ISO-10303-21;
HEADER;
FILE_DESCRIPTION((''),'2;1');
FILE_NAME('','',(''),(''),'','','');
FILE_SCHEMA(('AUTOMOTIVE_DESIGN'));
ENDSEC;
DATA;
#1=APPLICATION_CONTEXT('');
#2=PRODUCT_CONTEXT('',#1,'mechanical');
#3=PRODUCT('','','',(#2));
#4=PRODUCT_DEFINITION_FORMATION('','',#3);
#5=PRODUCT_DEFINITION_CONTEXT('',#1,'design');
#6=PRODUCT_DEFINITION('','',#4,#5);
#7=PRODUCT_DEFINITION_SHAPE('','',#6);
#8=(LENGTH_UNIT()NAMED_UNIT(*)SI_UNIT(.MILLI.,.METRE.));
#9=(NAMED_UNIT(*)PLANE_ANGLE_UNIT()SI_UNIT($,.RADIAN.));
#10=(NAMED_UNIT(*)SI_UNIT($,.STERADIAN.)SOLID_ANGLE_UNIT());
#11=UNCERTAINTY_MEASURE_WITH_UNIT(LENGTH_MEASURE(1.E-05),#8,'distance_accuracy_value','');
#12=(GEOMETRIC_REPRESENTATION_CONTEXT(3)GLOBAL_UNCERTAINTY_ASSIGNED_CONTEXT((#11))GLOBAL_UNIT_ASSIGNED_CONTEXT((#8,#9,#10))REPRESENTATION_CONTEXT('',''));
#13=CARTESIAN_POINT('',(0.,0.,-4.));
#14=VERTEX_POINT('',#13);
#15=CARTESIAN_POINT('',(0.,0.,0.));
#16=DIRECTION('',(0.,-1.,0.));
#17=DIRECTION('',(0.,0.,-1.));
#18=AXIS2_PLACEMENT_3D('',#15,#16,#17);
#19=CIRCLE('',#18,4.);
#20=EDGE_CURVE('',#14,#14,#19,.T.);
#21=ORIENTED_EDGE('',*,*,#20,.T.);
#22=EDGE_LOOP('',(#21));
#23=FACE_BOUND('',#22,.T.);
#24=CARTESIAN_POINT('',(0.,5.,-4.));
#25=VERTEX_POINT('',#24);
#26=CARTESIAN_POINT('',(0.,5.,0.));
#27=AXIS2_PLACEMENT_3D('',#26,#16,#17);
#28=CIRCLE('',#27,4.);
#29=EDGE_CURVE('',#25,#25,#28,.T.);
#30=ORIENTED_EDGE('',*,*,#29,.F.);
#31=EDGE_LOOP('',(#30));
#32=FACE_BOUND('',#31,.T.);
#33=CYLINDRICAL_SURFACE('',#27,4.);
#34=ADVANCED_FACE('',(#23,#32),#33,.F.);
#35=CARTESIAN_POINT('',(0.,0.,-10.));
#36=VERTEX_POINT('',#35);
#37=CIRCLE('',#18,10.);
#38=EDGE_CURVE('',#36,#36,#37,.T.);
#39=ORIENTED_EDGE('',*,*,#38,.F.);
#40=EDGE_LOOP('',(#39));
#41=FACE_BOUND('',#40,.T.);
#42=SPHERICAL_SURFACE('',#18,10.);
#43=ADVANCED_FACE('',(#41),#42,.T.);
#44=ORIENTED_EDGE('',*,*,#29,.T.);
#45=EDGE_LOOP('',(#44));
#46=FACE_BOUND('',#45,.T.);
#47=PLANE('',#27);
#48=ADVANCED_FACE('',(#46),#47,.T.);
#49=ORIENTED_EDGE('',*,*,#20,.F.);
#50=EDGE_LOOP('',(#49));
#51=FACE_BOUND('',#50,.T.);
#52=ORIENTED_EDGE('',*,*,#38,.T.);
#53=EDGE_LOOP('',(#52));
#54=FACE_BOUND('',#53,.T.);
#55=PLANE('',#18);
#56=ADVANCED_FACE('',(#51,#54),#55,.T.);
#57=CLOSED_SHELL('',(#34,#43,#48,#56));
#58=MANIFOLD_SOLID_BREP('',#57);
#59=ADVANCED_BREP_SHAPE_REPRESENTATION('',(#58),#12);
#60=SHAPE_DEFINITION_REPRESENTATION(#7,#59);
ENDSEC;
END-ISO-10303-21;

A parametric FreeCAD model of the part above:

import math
import FreeCAD as App
import Part
import Sketcher

V = App.Vector
Q = App.Units.Quantity

doc = App.newDocument("Part")
body = doc.addObject("PartDesign::Body", "Body")

sketch1 = body.newObject("Sketcher::SketchObject", "Sketch")
sketch1.AttachmentSupport = (doc.getObject("XZ_Plane"), [""])
sketch1.MapMode = "FlatFace"
sketch1.addGeometry(Part.LineSegment(V(-10, 0, 0), V(10, 0, 0)), False)
sketch1.addGeometry(Part.ArcOfCircle(Part.Circle(V(0, 0, 0), V(0, 0, 1), 10), math.radians(180), math.radians(360)), False)
sketch1.addConstraint(Sketcher.Constraint("Coincident", 0, 1, 1, 1))
sketch1.addConstraint(Sketcher.Constraint("Coincident", 1, 2, 0, 2))
sketch1.addConstraint(Sketcher.Constraint("Horizontal", 0))
sketch1.addConstraint(Sketcher.Constraint("Coincident", 1, 3, -1, 1))
sketch1.addConstraint(Sketcher.Constraint("PointOnObject", 0, 1, -1))
sketch1.addConstraint(Sketcher.Constraint("Radius", 1, Q("10 mm")))
revolution = body.newObject("PartDesign::Revolution", "Revolution")
revolution.Profile = sketch1
revolution.ReferenceAxis = (sketch1, ["H_Axis"])
revolution.Angle = 180

sketch2 = body.newObject("Sketcher::SketchObject", "Sketch001")
sketch2.AttachmentSupport = (doc.getObject("XZ_Plane"), [""])
sketch2.MapMode = "FlatFace"
sketch2.addGeometry(Part.Circle(V(0, 0, 0), V(0, 0, 1), 4), False)
sketch2.addConstraint(Sketcher.Constraint("Coincident", 0, 3, -1, 1))
sketch2.addConstraint(Sketcher.Constraint("Diameter", 0, Q("8 mm")))
pocket1 = body.newObject("PartDesign::Pocket", "Pocket")
pocket1.Profile = sketch2
pocket1.Length = 5

doc.recompute()
